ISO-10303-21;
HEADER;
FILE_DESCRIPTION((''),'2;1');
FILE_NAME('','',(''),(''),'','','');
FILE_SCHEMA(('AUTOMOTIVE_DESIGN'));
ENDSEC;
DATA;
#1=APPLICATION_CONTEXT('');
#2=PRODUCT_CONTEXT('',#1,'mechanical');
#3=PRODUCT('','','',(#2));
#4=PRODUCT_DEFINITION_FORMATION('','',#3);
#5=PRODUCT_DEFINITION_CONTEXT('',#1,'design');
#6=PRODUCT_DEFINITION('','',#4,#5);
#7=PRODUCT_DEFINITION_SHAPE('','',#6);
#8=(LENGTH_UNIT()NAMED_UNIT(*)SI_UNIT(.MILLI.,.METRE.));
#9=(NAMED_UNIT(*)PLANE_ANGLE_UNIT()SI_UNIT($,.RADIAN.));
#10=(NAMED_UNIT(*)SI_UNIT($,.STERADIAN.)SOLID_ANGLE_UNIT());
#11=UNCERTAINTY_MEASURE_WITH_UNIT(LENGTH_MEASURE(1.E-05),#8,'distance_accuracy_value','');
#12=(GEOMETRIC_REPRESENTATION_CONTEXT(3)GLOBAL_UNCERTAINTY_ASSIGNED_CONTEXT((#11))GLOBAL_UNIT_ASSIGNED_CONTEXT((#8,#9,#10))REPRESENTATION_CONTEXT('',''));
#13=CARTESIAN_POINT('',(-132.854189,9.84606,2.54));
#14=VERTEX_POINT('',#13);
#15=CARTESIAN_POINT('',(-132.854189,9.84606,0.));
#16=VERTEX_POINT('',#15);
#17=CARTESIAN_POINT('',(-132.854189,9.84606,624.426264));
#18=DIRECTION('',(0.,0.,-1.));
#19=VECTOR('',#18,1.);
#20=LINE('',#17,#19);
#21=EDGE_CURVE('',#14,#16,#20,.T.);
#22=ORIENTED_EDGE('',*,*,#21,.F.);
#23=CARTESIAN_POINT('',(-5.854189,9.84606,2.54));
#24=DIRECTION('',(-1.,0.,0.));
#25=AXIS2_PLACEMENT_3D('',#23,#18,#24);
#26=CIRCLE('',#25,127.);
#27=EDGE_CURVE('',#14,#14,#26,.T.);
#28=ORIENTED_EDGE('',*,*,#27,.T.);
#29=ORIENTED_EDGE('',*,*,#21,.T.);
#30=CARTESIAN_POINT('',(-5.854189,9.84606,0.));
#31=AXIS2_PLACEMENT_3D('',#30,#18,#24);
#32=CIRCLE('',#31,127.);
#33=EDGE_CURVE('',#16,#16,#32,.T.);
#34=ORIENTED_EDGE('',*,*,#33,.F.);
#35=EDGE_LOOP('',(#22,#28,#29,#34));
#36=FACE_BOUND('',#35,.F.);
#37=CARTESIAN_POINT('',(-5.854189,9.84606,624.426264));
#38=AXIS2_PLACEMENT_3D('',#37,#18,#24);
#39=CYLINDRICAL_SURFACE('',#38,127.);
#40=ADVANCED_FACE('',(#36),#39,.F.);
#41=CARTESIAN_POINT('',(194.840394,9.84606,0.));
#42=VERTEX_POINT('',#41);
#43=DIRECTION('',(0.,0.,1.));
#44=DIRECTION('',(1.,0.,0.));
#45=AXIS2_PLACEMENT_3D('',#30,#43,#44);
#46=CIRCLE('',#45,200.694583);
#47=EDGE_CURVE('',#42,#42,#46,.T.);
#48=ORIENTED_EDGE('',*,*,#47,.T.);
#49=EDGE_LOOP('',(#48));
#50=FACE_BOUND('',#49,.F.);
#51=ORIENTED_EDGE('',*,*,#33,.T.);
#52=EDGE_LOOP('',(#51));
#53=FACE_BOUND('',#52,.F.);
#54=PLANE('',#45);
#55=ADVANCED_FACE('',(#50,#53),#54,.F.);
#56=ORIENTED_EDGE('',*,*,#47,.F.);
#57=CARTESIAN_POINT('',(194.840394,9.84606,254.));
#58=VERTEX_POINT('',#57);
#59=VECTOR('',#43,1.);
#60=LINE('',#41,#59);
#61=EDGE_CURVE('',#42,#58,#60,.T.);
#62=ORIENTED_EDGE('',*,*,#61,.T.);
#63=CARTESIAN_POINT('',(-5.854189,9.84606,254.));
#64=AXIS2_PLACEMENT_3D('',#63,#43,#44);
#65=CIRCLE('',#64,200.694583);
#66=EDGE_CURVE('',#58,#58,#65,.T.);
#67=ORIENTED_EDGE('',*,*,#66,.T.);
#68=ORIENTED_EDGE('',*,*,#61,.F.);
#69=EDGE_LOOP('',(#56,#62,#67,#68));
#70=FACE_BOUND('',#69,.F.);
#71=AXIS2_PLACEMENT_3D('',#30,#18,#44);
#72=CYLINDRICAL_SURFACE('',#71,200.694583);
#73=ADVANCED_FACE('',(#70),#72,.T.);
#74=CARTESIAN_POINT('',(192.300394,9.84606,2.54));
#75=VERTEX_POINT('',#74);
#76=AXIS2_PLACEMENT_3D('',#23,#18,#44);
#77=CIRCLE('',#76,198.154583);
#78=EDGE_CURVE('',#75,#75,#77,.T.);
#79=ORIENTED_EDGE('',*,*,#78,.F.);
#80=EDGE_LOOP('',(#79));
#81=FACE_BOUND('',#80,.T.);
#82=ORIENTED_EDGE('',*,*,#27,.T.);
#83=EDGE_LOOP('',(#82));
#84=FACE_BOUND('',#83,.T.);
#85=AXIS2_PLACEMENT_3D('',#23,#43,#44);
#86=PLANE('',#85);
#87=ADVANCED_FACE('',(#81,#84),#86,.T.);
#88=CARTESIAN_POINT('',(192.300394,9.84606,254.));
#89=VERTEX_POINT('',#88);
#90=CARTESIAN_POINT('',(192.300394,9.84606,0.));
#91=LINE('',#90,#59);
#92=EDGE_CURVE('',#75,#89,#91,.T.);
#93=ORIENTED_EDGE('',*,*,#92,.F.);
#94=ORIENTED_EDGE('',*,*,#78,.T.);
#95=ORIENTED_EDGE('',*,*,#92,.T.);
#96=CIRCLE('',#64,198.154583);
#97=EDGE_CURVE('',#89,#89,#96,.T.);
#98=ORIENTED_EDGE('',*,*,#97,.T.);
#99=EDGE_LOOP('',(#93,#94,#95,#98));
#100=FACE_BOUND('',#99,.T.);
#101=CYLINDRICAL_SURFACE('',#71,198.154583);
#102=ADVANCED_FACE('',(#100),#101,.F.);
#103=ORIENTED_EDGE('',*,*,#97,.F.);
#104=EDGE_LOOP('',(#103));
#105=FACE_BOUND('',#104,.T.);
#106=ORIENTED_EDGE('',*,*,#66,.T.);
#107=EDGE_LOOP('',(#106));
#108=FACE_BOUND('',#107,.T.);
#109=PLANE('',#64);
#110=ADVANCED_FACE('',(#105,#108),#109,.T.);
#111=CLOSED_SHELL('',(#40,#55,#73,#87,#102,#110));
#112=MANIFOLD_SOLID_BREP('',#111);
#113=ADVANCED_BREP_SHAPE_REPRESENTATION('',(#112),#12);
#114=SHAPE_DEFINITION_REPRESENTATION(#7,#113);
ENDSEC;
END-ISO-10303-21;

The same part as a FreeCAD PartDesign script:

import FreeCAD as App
import Part
import Sketcher
Q = App.Units.Quantity


def faces_at(feature, points):
    """Names of the faces that lie closest to the given points."""
    faces = feature.Shape.Faces
    near = lambda p: min(range(len(faces)), key=lambda i: faces[i].distToShape(Part.Vertex(*p))[0])
    return sorted({f"Face{near(p) + 1}" for p in points})

doc = App.newDocument("Part")
body = doc.addObject("PartDesign::Body", "Body")

# Sketch on XY plane
sketch1 = body.newObject("Sketcher::SketchObject", "Sketch")
sketch1.AttachmentSupport = (doc.getObject("XY_Plane"), [""])
sketch1.MapMode = "FlatFace"
sketch1.addGeometry(Part.Circle(App.Vector(-6, 10, 0), App.Vector(0, 0, 1), 201), False)
sketch1.addConstraint(Sketcher.Constraint("Diameter", 0, 401.389166))
sketch1.addConstraint(Sketcher.Constraint("DistanceX", 0, 3, -1, 1, 5.854189))
sketch1.addConstraint(Sketcher.Constraint("DistanceY", -1, 1, 0, 3, 9.84606))
pad1 = body.newObject("PartDesign::Pad", "Pad")
pad1.Profile = sketch1
pad1.Length = Q("10 in")
doc.recompute()

thickness = body.newObject("PartDesign::Thickness", "Thickness")
thickness.Base = (pad1, faces_at(pad1, [(-5.854, 9.846, 254)]))
thickness.Value = Q("0.1 in")
thickness.Reversed = True
thickness.Join = "Arc"

# Sketch on XY plane
sketch2 = body.newObject("Sketcher::SketchObject", "Sketch001")
sketch2.AttachmentSupport = (doc.getObject("XY_Plane"), [""])
sketch2.MapMode = "FlatFace"
sketch2.AttachmentOffset = App.Placement(App.Vector(0, 0, 0.1 * 25.4), App.Rotation())
sketch2.addGeometry(Part.Circle(App.Vector(-6, 10, 0), App.Vector(0, 0, 1), 127), False)
sketch2.addConstraint(Sketcher.Constraint("Diameter", 0, Q("10 in")))
sketch2.addConstraint(Sketcher.Constraint("DistanceX", 0, 3, -1, 1, 5.854189))
sketch2.addConstraint(Sketcher.Constraint("DistanceY", -1, 1, 0, 3, 9.84606))
doc.recompute()
hole = body.newObject("PartDesign::Hole", "Hole")
hole.Profile = sketch2
hole.ThreadType = "None"
hole.Diameter = Q("10 in")
hole.DepthType = "ThroughAll"

doc.recompute()
